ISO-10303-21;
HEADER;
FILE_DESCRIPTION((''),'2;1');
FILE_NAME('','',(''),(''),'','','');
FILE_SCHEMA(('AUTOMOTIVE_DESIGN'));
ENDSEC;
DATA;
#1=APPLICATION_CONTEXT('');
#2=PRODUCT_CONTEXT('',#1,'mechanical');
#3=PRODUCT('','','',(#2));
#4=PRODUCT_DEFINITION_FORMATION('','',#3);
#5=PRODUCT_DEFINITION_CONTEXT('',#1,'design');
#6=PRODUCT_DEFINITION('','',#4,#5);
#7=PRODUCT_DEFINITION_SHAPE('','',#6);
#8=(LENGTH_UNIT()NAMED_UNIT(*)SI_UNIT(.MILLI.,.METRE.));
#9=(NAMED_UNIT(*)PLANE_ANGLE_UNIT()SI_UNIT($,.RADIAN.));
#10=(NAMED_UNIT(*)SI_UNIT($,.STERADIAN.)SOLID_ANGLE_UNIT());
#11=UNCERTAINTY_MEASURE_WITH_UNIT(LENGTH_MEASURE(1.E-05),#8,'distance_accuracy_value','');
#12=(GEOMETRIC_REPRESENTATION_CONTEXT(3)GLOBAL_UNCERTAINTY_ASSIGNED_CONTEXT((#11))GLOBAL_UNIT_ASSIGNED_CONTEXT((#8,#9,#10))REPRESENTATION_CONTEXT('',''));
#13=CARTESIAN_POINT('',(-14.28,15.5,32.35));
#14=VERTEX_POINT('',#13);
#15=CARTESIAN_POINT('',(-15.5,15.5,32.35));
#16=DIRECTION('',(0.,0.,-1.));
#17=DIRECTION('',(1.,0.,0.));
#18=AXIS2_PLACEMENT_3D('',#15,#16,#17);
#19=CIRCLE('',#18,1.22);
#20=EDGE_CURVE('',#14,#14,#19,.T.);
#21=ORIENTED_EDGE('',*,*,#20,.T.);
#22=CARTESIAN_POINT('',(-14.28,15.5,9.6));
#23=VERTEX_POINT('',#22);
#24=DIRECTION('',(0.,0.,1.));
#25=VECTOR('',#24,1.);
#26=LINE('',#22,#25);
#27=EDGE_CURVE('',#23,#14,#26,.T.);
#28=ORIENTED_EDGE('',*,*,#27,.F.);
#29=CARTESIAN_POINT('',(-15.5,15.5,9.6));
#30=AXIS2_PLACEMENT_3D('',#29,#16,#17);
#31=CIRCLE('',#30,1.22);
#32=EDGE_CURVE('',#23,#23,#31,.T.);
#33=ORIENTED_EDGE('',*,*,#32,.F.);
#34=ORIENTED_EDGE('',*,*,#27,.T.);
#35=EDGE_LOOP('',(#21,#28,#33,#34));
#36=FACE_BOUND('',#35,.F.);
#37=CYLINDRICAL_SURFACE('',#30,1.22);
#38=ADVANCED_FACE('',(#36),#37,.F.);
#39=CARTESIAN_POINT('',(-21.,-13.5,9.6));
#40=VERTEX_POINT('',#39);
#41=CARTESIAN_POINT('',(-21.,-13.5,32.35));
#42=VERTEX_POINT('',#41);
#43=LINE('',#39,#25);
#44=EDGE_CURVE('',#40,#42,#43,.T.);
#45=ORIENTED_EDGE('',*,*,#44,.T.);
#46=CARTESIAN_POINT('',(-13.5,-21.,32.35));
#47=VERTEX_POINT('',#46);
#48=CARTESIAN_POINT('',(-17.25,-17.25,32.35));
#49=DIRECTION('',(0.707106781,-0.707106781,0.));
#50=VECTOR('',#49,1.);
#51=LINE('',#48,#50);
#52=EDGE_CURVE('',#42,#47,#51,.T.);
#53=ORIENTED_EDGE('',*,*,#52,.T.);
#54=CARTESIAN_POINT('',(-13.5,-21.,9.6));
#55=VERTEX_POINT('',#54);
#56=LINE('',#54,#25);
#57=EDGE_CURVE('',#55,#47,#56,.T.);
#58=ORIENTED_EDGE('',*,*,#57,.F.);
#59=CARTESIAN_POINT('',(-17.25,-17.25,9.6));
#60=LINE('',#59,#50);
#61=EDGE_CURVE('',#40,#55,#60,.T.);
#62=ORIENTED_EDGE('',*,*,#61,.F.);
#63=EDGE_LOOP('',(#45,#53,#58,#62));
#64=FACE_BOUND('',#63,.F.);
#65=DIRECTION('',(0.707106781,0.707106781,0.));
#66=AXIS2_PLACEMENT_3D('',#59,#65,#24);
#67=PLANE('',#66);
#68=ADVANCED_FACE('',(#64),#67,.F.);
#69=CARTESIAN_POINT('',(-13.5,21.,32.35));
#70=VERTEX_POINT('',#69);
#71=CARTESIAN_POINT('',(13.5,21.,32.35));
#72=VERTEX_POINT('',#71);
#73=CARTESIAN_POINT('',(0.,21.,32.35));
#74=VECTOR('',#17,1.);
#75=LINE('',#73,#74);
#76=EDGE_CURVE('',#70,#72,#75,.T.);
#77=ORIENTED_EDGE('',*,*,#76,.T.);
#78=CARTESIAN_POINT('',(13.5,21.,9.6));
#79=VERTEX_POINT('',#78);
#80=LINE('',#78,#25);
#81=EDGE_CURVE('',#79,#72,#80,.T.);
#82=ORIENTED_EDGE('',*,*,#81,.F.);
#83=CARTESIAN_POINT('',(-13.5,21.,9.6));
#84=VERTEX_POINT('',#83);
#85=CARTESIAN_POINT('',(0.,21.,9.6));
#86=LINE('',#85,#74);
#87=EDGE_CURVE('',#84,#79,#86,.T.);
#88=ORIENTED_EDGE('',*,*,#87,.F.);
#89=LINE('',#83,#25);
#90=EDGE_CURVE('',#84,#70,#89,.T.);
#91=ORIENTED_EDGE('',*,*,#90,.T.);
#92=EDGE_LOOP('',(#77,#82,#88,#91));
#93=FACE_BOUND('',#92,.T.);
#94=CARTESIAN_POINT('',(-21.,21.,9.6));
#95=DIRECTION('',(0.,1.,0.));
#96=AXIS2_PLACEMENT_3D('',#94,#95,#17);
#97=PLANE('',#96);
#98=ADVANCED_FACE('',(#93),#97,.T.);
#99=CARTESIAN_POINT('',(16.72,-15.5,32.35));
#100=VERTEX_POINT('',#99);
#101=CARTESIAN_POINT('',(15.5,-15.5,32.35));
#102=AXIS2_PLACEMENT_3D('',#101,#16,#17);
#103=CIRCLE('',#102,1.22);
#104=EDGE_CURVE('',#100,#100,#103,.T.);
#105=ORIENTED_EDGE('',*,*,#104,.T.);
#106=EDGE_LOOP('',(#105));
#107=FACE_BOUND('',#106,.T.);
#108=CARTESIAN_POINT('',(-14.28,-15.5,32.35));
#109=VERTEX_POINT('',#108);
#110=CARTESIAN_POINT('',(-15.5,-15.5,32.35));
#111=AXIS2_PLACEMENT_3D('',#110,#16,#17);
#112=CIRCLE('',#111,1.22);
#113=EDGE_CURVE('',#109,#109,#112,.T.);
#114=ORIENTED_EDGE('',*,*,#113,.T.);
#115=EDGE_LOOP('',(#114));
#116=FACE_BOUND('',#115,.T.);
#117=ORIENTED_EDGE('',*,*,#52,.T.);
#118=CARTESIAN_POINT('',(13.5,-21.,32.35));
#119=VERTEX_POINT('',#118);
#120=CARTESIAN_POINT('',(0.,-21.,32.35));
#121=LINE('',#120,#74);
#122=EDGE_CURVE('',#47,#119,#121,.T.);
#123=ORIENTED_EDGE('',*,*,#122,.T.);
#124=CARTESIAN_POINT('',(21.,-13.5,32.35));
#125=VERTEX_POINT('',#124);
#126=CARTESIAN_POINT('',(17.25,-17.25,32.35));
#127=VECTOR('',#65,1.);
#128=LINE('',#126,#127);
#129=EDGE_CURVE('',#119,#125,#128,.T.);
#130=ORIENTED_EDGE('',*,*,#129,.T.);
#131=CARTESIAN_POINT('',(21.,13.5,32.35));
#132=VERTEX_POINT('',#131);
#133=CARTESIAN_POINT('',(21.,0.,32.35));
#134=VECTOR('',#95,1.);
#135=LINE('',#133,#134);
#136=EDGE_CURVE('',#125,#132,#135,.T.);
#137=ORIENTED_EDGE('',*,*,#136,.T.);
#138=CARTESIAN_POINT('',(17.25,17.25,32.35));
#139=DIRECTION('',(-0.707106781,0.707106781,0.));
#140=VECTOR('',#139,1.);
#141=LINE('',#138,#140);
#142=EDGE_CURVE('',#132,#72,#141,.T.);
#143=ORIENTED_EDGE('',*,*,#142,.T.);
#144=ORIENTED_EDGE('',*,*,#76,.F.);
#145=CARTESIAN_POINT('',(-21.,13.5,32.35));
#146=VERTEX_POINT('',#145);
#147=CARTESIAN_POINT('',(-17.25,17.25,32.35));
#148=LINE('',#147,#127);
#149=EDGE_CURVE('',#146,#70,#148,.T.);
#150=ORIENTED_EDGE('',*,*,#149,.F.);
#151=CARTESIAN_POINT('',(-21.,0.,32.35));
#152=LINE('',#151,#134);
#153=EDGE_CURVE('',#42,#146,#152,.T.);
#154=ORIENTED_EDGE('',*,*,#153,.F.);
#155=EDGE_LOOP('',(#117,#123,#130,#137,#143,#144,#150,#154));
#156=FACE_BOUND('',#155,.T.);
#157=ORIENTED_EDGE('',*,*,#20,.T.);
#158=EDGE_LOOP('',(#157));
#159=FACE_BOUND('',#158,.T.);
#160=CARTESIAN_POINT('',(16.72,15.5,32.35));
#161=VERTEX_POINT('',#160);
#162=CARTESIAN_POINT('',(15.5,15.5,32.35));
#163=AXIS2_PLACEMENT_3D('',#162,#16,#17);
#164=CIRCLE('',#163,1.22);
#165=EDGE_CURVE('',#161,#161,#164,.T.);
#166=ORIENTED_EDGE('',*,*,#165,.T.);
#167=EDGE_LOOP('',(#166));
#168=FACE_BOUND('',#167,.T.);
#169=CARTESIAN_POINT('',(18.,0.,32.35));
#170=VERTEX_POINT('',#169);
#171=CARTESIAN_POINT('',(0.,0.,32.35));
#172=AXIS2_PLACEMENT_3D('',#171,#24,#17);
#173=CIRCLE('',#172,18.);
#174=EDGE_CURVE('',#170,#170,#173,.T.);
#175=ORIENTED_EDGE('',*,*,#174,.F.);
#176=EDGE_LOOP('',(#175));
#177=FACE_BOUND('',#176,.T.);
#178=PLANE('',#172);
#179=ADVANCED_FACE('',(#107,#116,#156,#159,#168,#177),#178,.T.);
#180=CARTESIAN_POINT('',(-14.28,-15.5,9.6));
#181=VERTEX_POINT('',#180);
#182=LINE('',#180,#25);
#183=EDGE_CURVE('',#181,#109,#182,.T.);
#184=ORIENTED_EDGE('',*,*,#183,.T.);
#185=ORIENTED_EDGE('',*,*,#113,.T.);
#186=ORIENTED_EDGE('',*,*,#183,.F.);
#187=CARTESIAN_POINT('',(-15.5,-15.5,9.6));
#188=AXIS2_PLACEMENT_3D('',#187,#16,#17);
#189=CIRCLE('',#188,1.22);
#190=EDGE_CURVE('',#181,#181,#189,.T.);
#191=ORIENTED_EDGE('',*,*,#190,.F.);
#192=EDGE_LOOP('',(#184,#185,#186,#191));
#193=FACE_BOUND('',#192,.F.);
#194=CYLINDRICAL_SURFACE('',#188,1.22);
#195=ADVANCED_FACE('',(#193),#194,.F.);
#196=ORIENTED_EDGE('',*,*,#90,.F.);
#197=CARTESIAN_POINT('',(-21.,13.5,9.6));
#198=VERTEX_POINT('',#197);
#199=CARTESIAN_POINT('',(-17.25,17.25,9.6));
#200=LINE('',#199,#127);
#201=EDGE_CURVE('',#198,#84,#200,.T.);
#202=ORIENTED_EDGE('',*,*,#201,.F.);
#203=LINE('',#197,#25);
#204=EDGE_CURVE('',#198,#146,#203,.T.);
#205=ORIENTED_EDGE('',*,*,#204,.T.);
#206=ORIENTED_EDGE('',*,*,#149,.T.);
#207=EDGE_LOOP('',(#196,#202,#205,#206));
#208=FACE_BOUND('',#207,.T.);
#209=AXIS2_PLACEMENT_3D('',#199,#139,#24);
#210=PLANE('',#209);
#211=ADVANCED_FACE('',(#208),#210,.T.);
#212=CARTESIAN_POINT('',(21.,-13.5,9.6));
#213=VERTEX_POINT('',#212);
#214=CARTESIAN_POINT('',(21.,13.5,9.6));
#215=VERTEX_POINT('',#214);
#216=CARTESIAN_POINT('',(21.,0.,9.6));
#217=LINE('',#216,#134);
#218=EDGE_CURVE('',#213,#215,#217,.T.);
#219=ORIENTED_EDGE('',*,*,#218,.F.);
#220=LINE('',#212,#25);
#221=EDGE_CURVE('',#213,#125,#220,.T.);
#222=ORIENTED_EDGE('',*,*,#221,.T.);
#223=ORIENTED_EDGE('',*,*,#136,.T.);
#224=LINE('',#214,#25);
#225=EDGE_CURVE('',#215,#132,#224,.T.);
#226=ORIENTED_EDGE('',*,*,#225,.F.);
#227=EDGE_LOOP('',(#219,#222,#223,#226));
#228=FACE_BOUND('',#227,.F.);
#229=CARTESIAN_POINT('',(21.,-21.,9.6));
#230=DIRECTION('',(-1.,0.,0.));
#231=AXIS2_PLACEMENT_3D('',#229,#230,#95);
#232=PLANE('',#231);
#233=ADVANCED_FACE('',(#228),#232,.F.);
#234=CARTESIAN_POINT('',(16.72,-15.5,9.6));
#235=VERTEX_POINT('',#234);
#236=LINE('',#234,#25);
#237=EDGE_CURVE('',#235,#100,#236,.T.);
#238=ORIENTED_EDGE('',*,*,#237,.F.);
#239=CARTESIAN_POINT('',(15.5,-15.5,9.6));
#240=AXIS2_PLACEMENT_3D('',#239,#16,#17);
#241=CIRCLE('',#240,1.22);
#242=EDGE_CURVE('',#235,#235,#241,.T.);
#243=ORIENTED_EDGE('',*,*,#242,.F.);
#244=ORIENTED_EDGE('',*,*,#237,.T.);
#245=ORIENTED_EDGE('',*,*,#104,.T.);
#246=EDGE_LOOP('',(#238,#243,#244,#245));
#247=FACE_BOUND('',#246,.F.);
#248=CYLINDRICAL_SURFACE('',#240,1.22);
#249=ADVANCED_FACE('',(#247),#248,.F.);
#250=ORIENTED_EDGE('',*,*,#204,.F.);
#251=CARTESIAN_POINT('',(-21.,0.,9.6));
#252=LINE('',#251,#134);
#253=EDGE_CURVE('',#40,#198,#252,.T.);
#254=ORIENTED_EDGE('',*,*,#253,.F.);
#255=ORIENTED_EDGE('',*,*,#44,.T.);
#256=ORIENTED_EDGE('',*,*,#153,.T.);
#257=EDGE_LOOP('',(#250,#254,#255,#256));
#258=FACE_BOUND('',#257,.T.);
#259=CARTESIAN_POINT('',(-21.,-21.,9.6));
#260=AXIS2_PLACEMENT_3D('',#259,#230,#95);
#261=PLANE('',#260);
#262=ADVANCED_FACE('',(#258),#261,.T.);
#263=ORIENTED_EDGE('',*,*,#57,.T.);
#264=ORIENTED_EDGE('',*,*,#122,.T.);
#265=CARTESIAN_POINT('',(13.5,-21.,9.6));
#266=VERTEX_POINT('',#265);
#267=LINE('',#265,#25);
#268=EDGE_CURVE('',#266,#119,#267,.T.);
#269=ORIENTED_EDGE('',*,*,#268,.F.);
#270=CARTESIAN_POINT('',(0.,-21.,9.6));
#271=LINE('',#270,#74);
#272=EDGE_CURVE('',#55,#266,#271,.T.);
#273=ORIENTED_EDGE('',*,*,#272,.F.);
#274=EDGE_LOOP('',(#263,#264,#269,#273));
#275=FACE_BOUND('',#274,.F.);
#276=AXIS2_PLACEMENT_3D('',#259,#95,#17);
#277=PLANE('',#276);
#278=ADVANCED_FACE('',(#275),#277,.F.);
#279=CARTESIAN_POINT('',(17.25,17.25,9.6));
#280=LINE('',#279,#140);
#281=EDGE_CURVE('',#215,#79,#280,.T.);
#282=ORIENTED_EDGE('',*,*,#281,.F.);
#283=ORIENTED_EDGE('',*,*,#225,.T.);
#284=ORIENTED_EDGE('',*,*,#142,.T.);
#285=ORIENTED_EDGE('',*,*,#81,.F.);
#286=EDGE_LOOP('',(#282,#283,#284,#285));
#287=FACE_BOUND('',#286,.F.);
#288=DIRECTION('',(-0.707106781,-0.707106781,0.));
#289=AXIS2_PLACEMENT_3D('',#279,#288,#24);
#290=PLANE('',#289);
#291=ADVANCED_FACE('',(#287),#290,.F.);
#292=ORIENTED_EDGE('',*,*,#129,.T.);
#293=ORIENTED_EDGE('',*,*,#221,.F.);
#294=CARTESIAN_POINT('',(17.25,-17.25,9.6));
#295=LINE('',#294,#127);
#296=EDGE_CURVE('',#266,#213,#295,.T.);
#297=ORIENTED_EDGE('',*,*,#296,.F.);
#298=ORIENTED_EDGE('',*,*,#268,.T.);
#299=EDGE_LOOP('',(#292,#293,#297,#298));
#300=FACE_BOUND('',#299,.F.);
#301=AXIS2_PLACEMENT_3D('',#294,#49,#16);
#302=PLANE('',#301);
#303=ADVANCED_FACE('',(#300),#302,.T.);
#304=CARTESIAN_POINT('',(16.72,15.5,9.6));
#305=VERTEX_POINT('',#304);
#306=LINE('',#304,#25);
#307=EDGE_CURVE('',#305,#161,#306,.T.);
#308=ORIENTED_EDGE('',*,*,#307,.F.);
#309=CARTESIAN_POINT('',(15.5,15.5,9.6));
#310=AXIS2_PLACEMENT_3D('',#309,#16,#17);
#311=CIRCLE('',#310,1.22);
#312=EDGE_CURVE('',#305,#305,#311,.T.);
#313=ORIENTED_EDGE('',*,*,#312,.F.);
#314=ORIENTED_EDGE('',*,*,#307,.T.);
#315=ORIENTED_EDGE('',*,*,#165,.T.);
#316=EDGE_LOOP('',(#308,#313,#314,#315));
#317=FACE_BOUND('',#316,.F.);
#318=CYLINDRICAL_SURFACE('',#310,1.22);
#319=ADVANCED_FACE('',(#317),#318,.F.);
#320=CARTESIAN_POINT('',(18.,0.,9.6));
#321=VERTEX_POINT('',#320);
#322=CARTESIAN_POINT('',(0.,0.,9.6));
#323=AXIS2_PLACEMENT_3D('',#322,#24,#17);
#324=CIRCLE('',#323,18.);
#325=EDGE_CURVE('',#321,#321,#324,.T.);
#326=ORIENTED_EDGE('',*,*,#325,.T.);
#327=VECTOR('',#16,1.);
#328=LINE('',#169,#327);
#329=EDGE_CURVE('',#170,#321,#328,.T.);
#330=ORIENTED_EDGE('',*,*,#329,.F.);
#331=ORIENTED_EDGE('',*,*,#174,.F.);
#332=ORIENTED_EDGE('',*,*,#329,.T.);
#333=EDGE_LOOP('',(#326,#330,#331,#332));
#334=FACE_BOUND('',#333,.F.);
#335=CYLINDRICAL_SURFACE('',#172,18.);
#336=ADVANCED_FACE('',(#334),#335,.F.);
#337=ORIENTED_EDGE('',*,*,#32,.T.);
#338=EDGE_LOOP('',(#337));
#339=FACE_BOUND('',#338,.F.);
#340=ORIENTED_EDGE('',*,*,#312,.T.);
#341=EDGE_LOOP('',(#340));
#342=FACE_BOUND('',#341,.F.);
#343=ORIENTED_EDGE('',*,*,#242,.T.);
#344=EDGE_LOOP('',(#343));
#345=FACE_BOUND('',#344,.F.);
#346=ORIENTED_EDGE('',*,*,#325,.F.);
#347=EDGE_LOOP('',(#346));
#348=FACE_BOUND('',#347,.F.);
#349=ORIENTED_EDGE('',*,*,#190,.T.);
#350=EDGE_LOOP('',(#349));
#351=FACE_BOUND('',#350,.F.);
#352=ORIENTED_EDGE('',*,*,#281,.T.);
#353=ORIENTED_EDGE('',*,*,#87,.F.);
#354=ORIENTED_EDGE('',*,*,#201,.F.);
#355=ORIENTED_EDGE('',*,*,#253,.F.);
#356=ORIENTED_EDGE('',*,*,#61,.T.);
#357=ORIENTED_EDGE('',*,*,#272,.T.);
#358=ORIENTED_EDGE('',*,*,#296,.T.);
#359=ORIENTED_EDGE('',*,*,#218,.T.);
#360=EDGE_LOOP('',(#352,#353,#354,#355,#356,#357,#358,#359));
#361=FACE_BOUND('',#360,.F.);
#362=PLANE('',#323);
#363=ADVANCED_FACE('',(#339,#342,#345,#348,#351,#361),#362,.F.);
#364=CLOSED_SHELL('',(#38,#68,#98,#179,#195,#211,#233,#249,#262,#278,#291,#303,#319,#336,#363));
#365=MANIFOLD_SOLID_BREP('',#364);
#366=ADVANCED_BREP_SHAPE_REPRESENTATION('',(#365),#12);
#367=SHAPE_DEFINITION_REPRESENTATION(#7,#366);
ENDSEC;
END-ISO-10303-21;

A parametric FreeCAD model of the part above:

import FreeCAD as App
import Part
import Sketcher


def edges_at(feature, points):
    """Names of the edges that pass closest to the given points."""
    edges = feature.Shape.Edges
    near = lambda p: min(range(len(edges)), key=lambda i: edges[i].distToShape(Part.Vertex(*p))[0])
    return sorted({f"Edge{near(p) + 1}" for p in points})

doc = App.newDocument("Part")
body = doc.addObject("PartDesign::Body", "Body")

# Sketch on XY plane
sketch1 = body.newObject("Sketcher::SketchObject", "Sketch")
sketch1.AttachmentSupport = (doc.getObject("XY_Plane"), [""])
sketch1.MapMode = "FlatFace"
sketch1.addGeometry(Part.LineSegment(App.Vector(-21, 21, 0), App.Vector(-21, -21, 0)), False)
sketch1.addGeometry(Part.LineSegment(App.Vector(-21, -21, 0), App.Vector(21, -21, 0)), False)
sketch1.addGeometry(Part.LineSegment(App.Vector(21, -21, 0), App.Vector(21, 21, 0)), False)
sketch1.addGeometry(Part.LineSegment(App.Vector(21, 21, 0), App.Vector(-21, 21, 0)), False)
sketch1.addConstraint(Sketcher.Constraint("Coincident", 0, 2, 1, 1))
sketch1.addConstraint(Sketcher.Constraint("Coincident", 1, 2, 2, 1))
sketch1.addConstraint(Sketcher.Constraint("Coincident", 2, 2, 3, 1))
sketch1.addConstraint(Sketcher.Constraint("Coincident", 3, 2, 0, 1))
sketch1.addConstraint(Sketcher.Constraint("Vertical", 0))
sketch1.addConstraint(Sketcher.Constraint("Horizontal", 1))
sketch1.addConstraint(Sketcher.Constraint("Vertical", 2))
sketch1.addConstraint(Sketcher.Constraint("Horizontal", 3))
sketch1.addConstraint(Sketcher.Constraint("Symmetric", 0, 2, 2, 2, -1, 1))
sketch1.addConstraint(Sketcher.Constraint("Equal", 3, 0))
sketch1.addConstraint(Sketcher.Constraint("DistanceX", 1, 1, 1, 2, 42.0))
pad1 = body.newObject("PartDesign::Pad", "Pad")
pad1.Profile = sketch1
pad1.Length = 22.75
doc.recompute()

chamfer = body.newObject("PartDesign::Chamfer", "Chamfer")
chamfer.Base = (pad1, edges_at(pad1, [
    (-21, -21, 11.375),
    (-21, 21, 11.375),
    (21, -21, 11.375),
    (21, 21, 11.375),
]))
chamfer.Size = 7.5

# Sketch on XY plane
sketch2 = body.newObject("Sketcher::SketchObject", "Sketch001")
sketch2.AttachmentSupport = (doc.getObject("XY_Plane"), [""])
sketch2.MapMode = "FlatFace"
sketch2.addGeometry(Part.Circle(App.Vector(-15.5, -15.5, 0), App.Vector(0, 0, 1), 1.2), False)
sketch2.addGeometry(Part.Circle(App.Vector(15.5, -15.5, 0), App.Vector(0, 0, 1), 1.2), False)
sketch2.addGeometry(Part.Circle(App.Vector(15.5, 15.5, 0), App.Vector(0, 0, 1), 1.2), False)
sketch2.addGeometry(Part.Circle(App.Vector(-15.5, 15.5, 0), App.Vector(0, 0, 1), 1.2), False)
sketch2.addConstraint(Sketcher.Constraint("Equal", 0, 1))
sketch2.addConstraint(Sketcher.Constraint("Equal", 1, 2))
sketch2.addConstraint(Sketcher.Constraint("Equal", 2, 3))
sketch2.addConstraint(Sketcher.Constraint("Symmetric", 0, 3, 2, 3, -1, 1))
sketch2.addConstraint(Sketcher.Constraint("Symmetric", 1, 3, 3, 3, -1, 1))
sketch2.addConstraint(Sketcher.Constraint("Symmetric", 0, 3, 1, 3, -2))
sketch2.addConstraint(Sketcher.Constraint("Diameter", 0, 2.44))
sketch2.addConstraint(Sketcher.Constraint("DistanceX", 0, 3, 1, 3, 31.0))
sketch2.addConstraint(Sketcher.Constraint("DistanceY", 1, 3, 2, 3, 31.0))
pocket1 = body.newObject("PartDesign::Pocket", "Pocket")
pocket1.Profile = sketch2
pocket1.Type = "ThroughAll"
pocket1.Reversed = True

# Sketch on XY plane
sketch3 = body.newObject("Sketcher::SketchObject", "Sketch002")
sketch3.AttachmentSupport = (doc.getObject("XY_Plane"), [""])
sketch3.MapMode = "FlatFace"
sketch3.AttachmentOffset = App.Placement(App.Vector(0, 0, 22.75), App.Rotation())
sketch3.addGeometry(Part.Circle(App.Vector(0, 0, 0), App.Vector(0, 0, 1), 18), False)
sketch3.addConstraint(Sketcher.Constraint("Coincident", 0, 3, -1, 1))
sketch3.addConstraint(Sketcher.Constraint("Diameter", 0, 36.0))
pocket2 = body.newObject("PartDesign::Pocket", "Pocket001")
pocket2.Profile = sketch3
pocket2.Type = "ThroughAll"
body2 = doc.addObject("PartDesign::Body", "Body001")
doc.recompute()

body.Placement = App.Placement(App.Vector(0, 0, 9.6), App.Rotation(App.Vector(0, 0, 1), 0))
boolean = body2.newObject("PartDesign::Boolean", "Boolean")
boolean.Type = "Fuse"
boolean.addObjects([body])

doc.recompute()
